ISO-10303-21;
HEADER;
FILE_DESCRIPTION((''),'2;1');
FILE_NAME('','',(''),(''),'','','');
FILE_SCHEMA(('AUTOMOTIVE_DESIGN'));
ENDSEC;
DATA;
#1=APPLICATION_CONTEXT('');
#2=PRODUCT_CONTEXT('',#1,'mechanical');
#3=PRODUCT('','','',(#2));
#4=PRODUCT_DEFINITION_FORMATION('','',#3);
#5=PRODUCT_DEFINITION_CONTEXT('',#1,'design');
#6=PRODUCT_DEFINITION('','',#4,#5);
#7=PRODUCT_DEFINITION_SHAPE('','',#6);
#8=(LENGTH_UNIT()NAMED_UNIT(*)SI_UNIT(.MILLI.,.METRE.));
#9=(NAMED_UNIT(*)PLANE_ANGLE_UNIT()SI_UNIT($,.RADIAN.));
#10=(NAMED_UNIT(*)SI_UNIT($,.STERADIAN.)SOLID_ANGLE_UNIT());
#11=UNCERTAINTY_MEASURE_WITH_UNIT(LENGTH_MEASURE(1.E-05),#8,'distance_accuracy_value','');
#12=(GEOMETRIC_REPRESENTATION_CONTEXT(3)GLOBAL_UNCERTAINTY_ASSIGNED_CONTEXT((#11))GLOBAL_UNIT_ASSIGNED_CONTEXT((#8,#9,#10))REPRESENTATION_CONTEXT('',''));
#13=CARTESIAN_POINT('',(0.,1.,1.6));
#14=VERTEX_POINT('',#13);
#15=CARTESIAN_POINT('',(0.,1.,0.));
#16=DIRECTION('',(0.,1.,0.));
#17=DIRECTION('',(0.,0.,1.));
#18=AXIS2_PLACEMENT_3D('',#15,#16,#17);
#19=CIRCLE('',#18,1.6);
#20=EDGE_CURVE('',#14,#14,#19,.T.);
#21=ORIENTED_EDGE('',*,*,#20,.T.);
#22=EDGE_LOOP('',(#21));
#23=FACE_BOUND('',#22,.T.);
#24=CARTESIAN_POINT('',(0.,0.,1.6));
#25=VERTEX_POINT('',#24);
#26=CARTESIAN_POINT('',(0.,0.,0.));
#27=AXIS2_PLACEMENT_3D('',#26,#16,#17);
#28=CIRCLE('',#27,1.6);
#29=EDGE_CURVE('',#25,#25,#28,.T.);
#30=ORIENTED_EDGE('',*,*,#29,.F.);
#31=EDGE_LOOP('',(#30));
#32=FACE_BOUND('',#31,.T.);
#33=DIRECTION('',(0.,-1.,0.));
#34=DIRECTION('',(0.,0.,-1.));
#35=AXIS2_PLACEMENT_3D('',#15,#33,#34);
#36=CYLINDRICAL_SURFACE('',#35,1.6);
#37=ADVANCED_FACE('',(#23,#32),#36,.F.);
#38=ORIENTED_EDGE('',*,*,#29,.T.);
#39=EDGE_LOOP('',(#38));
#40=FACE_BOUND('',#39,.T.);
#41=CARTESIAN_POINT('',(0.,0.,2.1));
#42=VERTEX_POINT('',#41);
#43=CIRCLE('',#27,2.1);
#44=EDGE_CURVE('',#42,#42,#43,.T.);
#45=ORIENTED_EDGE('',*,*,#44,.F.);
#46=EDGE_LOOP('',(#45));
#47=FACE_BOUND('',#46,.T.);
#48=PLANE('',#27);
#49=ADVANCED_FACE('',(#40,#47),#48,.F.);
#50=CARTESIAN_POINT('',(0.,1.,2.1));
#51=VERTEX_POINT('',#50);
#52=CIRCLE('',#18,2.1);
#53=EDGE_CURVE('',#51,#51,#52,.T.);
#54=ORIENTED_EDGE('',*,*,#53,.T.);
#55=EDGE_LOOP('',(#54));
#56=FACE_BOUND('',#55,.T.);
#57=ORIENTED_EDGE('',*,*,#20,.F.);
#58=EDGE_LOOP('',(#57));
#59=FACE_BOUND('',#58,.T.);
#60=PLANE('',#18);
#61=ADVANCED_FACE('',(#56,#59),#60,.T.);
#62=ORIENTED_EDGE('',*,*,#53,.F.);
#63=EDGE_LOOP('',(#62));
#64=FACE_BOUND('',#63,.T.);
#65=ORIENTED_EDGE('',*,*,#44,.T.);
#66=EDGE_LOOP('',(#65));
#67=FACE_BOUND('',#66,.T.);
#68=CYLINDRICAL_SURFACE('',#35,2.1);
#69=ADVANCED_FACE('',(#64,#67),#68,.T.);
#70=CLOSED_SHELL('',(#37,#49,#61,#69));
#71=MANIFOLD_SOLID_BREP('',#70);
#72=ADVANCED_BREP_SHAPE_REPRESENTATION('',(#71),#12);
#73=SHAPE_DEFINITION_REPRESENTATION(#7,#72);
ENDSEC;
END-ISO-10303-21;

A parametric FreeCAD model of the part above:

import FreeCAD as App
import Part
import Sketcher
Q = App.Units.Quantity

doc = App.newDocument("Part")
body = doc.addObject("PartDesign::Body", "Body")

# Sketch on XZ plane
sketch1 = body.newObject("Sketcher::SketchObject", "Sketch")
sketch1.AttachmentSupport = (doc.getObject("XZ_Plane"), [""])
sketch1.MapMode = "FlatFace"
sketch1.addGeometry([
    Part.Circle(App.Vector(0, 0, 0), App.Vector(0, 0, 1), 2.1),
    Part.Circle(App.Vector(0, 0, 0), App.Vector(0, 0, 1), 1.6),
], False)
sketch1.addConstraint([
    Sketcher.Constraint("Coincident", 0, 3, -1, 1),
    Sketcher.Constraint("Coincident", 1, 3, -1, 1),
    Sketcher.Constraint("Diameter", 0, Q("4.2 mm")),
    Sketcher.Constraint("Diameter", 1, Q("3.2 mm")),
])
pad1 = body.newObject("PartDesign::Pad", "Pad")
pad1.Profile = sketch1
pad1.Length = 1
pad1.Reversed = True

doc.recompute()
